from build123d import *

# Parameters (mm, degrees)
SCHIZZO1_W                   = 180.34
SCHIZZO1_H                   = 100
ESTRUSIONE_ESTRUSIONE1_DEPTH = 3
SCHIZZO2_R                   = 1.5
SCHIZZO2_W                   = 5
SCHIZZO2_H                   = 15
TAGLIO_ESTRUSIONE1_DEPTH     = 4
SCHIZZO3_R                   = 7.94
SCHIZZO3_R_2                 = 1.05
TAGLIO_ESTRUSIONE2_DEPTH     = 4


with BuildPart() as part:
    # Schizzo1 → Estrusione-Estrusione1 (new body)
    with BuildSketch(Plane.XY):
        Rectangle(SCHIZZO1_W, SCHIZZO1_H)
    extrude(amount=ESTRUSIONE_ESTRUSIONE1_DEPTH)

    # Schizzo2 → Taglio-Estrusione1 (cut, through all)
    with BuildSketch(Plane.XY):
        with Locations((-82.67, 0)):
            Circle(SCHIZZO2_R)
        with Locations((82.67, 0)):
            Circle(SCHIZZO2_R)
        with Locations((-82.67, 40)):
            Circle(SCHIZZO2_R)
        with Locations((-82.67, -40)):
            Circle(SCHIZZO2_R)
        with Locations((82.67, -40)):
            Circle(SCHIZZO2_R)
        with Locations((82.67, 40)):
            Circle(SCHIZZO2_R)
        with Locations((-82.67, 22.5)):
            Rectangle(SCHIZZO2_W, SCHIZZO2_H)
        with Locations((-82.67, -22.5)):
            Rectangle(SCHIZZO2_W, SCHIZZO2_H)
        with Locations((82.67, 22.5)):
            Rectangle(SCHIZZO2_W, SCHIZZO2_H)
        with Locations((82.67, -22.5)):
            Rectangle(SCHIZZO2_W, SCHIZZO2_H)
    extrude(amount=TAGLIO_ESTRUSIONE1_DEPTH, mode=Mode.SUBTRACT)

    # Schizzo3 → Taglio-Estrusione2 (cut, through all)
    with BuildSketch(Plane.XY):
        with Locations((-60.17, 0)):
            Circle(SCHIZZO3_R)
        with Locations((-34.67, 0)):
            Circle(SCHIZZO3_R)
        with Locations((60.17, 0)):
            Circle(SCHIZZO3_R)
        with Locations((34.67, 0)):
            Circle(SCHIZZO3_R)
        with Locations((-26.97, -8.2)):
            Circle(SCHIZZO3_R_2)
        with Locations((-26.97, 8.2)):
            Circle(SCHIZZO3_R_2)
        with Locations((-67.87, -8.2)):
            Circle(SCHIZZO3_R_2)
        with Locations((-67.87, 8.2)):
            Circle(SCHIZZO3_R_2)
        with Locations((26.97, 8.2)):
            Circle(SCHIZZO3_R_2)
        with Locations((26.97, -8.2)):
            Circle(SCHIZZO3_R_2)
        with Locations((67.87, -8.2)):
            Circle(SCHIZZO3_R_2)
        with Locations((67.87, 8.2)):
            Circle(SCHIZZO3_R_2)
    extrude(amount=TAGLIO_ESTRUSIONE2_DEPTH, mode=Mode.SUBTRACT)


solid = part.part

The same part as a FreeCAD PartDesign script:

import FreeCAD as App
import Part
import Sketcher

doc = App.newDocument("Part")
params = doc.addObject("Spreadsheet::Sheet", "Params")
for row, (alias, value) in enumerate([
    ("sketch1_height", "100 mm"),
    ("sketch1_width", "180.34 mm"),
    ("pad1_length", "3 mm"),
    ("sketch2_diameter", "3 mm"),
    ("sketch2_width", "5 mm"),
    ("sketch2_height", "15 mm"),
    ("sketch3_diameter", "2.1 mm"),
    ("sketch3_diameter2", "15.88 mm"),
], start=1):
    params.set(f"A{row}", alias)
    params.set(f"B{row}", "=" + value)
    params.setAlias(f"B{row}", alias)

body = doc.addObject("PartDesign::Body", "Body")

# Sketch on XY plane
sketch1 = body.newObject("Sketcher::SketchObject", "Sketch")
sketch1.AttachmentSupport = (doc.getObject("XY_Plane"), [""])
sketch1.MapMode = "FlatFace"
sketch1.addGeometry(Part.LineSegment(App.Vector(-90, 50, 0), App.Vector(-90, -50, 0)), False)
sketch1.addGeometry(Part.LineSegment(App.Vector(-90, -50, 0), App.Vector(90, -50, 0)), False)
sketch1.addGeometry(Part.LineSegment(App.Vector(90, -50, 0), App.Vector(90, 50, 0)), False)
sketch1.addGeometry(Part.LineSegment(App.Vector(90, 50, 0), App.Vector(-90, 50, 0)), False)
sketch1.addConstraint(Sketcher.Constraint("Coincident", 0, 2, 1, 1))
sketch1.addConstraint(Sketcher.Constraint("Coincident", 1, 2, 2, 1))
sketch1.addConstraint(Sketcher.Constraint("Coincident", 2, 2, 3, 1))
sketch1.addConstraint(Sketcher.Constraint("Coincident", 3, 2, 0, 1))
sketch1.addConstraint(Sketcher.Constraint("Vertical", 0))
sketch1.addConstraint(Sketcher.Constraint("Horizontal", 1))
sketch1.addConstraint(Sketcher.Constraint("Vertical", 2))
sketch1.addConstraint(Sketcher.Constraint("Horizontal", 3))
sketch1.addConstraint(Sketcher.Constraint("Symmetric", 0, 2, 2, 2, -1, 1))
sketch1.addConstraint(Sketcher.Constraint("DistanceY", 0, 2, 0, 1, 100.0))
sketch1.addConstraint(Sketcher.Constraint("DistanceX", 1, 1, 1, 2, 180.34))
sketch1.setExpression("Constraints[9]", "Params.sketch1_height")
sketch1.setExpression("Constraints[10]", "Params.sketch1_width")
pad1 = body.newObject("PartDesign::Pad", "Pad")
pad1.Profile = sketch1
pad1.setExpression("Length", "Params.pad1_length")

# Sketch on XY plane
sketch2 = body.newObject("Sketcher::SketchObject", "Sketch001")
sketch2.AttachmentSupport = (doc.getObject("XY_Plane"), [""])
sketch2.MapMode = "FlatFace"
sketch2.addGeometry(Part.Circle(App.Vector(-82.7, 0, 0), App.Vector(0, 0, 1), 1.5), False)
sketch2.addGeometry(Part.Circle(App.Vector(82.7, 0, 0), App.Vector(0, 0, 1), 1.5), False)
sketch2.addGeometry(Part.Circle(App.Vector(-82.7, 40, 0), App.Vector(0, 0, 1), 1.5), False)
sketch2.addGeometry(Part.Circle(App.Vector(-82.7, -40, 0), App.Vector(0, 0, 1), 1.5), False)
sketch2.addGeometry(Part.Circle(App.Vector(82.7, -40, 0), App.Vector(0, 0, 1), 1.5), False)
sketch2.addGeometry(Part.Circle(App.Vector(82.7, 40, 0), App.Vector(0, 0, 1), 1.5), False)
sketch2.addGeometry(Part.LineSegment(App.Vector(-85.2, 30, 0), App.Vector(-85.2, 15, 0)), False)
sketch2.addGeometry(Part.LineSegment(App.Vector(-85.2, 15, 0), App.Vector(-80.2, 15, 0)), False)
sketch2.addGeometry(Part.LineSegment(App.Vector(-80.2, 15, 0), App.Vector(-80.2, 30, 0)), False)
sketch2.addGeometry(Part.LineSegment(App.Vector(-80.2, 30, 0), App.Vector(-85.2, 30, 0)), False)
sketch2.addGeometry(Part.LineSegment(App.Vector(-85.2, -15, 0), App.Vector(-85.2, -30, 0)), False)
sketch2.addGeometry(Part.LineSegment(App.Vector(-85.2, -30, 0), App.Vector(-80.2, -30, 0)), False)
sketch2.addGeometry(Part.LineSegment(App.Vector(-80.2, -30, 0), App.Vector(-80.2, -15, 0)), False)
sketch2.addGeometry(Part.LineSegment(App.Vector(-80.2, -15, 0), App.Vector(-85.2, -15, 0)), False)
sketch2.addGeometry(Part.LineSegment(App.Vector(80.2, 30, 0), App.Vector(80.2, 15, 0)), False)
sketch2.addGeometry(Part.LineSegment(App.Vector(80.2, 15, 0), App.Vector(85.2, 15, 0)), False)
sketch2.addGeometry(Part.LineSegment(App.Vector(85.2, 15, 0), App.Vector(85.2, 30, 0)), False)
sketch2.addGeometry(Part.LineSegment(App.Vector(85.2, 30, 0), App.Vector(80.2, 30, 0)), False)
sketch2.addGeometry(Part.LineSegment(App.Vector(80.2, -15, 0), App.Vector(80.2, -30, 0)), False)
sketch2.addGeometry(Part.LineSegment(App.Vector(80.2, -30, 0), App.Vector(85.2, -30, 0)), False)
sketch2.addGeometry(Part.LineSegment(App.Vector(85.2, -30, 0), App.Vector(85.2, -15, 0)), False)
sketch2.addGeometry(Part.LineSegment(App.Vector(85.2, -15, 0), App.Vector(80.2, -15, 0)), False)
sketch2.addConstraint(Sketcher.Constraint("Coincident", 6, 2, 7, 1))
sketch2.addConstraint(Sketcher.Constraint("Coincident", 7, 2, 8, 1))
sketch2.addConstraint(Sketcher.Constraint("Coincident", 8, 2, 9, 1))
sketch2.addConstraint(Sketcher.Constraint("Coincident", 9, 2, 6, 1))
sketch2.addConstraint(Sketcher.Constraint("Coincident", 10, 2, 11, 1))
sketch2.addConstraint(Sketcher.Constraint("Coincident", 11, 2, 12, 1))
sketch2.addConstraint(Sketcher.Constraint("Coincident", 12, 2, 13, 1))
sketch2.addConstraint(Sketcher.Constraint("Coincident", 13, 2, 10, 1))
sketch2.addConstraint(Sketcher.Constraint("Coincident", 14, 2, 15, 1))
sketch2.addConstraint(Sketcher.Constraint("Coincident", 15, 2, 16, 1))
sketch2.addConstraint(Sketcher.Constraint("Coincident", 16, 2, 17, 1))
sketch2.addConstraint(Sketcher.Constraint("Coincident", 17, 2, 14, 1))
sketch2.addConstraint(Sketcher.Constraint("Coincident", 18, 2, 19, 1))
sketch2.addConstraint(Sketcher.Constraint("Coincident", 19, 2, 20, 1))
sketch2.addConstraint(Sketcher.Constraint("Coincident", 20, 2, 21, 1))
sketch2.addConstraint(Sketcher.Constraint("Coincident", 21, 2, 18, 1))
sketch2.addConstraint(Sketcher.Constraint("Vertical", 6))
sketch2.addConstraint(Sketcher.Constraint("Horizontal", 7))
sketch2.addConstraint(Sketcher.Constraint("Vertical", 8))
sketch2.addConstraint(Sketcher.Constraint("Horizontal", 9))
sketch2.addConstraint(Sketcher.Constraint("Vertical", 10))
sketch2.addConstraint(Sketcher.Constraint("Horizontal", 11))
sketch2.addConstraint(Sketcher.Constraint("Vertical", 12))
sketch2.addConstraint(Sketcher.Constraint("Horizontal", 13))
sketch2.addConstraint(Sketcher.Constraint("Vertical", 14))
sketch2.addConstraint(Sketcher.Constraint("Horizontal", 15))
sketch2.addConstraint(Sketcher.Constraint("Vertical", 16))
sketch2.addConstraint(Sketcher.Constraint("Horizontal", 17))
sketch2.addConstraint(Sketcher.Constraint("Vertical", 18))
sketch2.addConstraint(Sketcher.Constraint("Horizontal", 19))
sketch2.addConstraint(Sketcher.Constraint("Vertical", 20))
sketch2.addConstraint(Sketcher.Constraint("Horizontal", 21))
sketch2.addConstraint(Sketcher.Constraint("Equal", 0, 1))
sketch2.addConstraint(Sketcher.Constraint("Equal", 1, 2))
sketch2.addConstraint(Sketcher.Constraint("Equal", 2, 3))
sketch2.addConstraint(Sketcher.Constraint("Equal", 3, 4))
sketch2.addConstraint(Sketcher.Constraint("Equal", 4, 5))
sketch2.addConstraint(Sketcher.Constraint("Symmetric", 0, 3, 1, 3, -1, 1))
sketch2.addConstraint(Sketcher.Constraint("Symmetric", 2, 3, 4, 3, -1, 1))
sketch2.addConstraint(Sketcher.Constraint("Symmetric", 3, 3, 5, 3, -1, 1))
sketch2.addConstraint(Sketcher.Constraint("Symmetric", 12, 2, 14, 2, -1, 1))
sketch2.addConstraint(Sketcher.Constraint("Symmetric", 10, 2, 16, 2, -1, 1))
sketch2.addConstraint(Sketcher.Constraint("Symmetric", 8, 2, 18, 2, -1, 1))
sketch2.addConstraint(Sketcher.Constraint("Symmetric", 6, 2, 20, 2, -1, 1))
sketch2.addConstraint(Sketcher.Constraint("Symmetric", 3, 3, 4, 3, -2))
sketch2.addConstraint(Sketcher.Constraint("Symmetric", 7, 2, 14, 2, -2))
sketch2.addConstraint(Sketcher.Constraint("Symmetric", 9, 2, 16, 2, -2))
sketch2.addConstraint(Sketcher.Constraint("PointOnObject", 0, 3, -1))
sketch2.addConstraint(Sketcher.Constraint("Vertical", 0, 3, 2, 3))
sketch2.addConstraint(Sketcher.Constraint("Diameter", 0, 3.0))
sketch2.addConstraint(Sketcher.Constraint("DistanceX", 7, 1, 7, 2, 5.0))
sketch2.addConstraint(Sketcher.Constraint("DistanceY", 6, 2, 6, 1, 15.0))
sketch2.addConstraint(Sketcher.Constraint("DistanceY", -1, 1, 2, 3, 40.0))
sketch2.addConstraint(Sketcher.Constraint("DistanceY", -1, 1, 6, 2, 15.0))
sketch2.addConstraint(Sketcher.Constraint("DistanceX", 6, 2, 0, 3, 2.5))
sketch2.addConstraint(Sketcher.Constraint("DistanceX", 0, 3, -1, 1, 82.67))
sketch2.setExpression("Constraints[49]", "Params.sketch2_diameter")
sketch2.setExpression("Constraints[50]", "Params.sketch2_width")
sketch2.setExpression("Constraints[51]", "Params.sketch2_height")
pocket1 = body.newObject("PartDesign::Pocket", "Pocket")
pocket1.Profile = sketch2
pocket1.Type = "ThroughAll"
pocket1.Reversed = True

# Sketch on XY plane
sketch3 = body.newObject("Sketcher::SketchObject", "Sketch002")
sketch3.AttachmentSupport = (doc.getObject("XY_Plane"), [""])
sketch3.MapMode = "FlatFace"
sketch3.addGeometry(Part.Circle(App.Vector(-60.2, 0, 0), App.Vector(0, 0, 1), 7.9), False)
sketch3.addGeometry(Part.Circle(App.Vector(-34.7, 0, 0), App.Vector(0, 0, 1), 7.9), False)
sketch3.addGeometry(Part.Circle(App.Vector(60.2, 0, 0), App.Vector(0, 0, 1), 7.9), False)
sketch3.addGeometry(Part.Circle(App.Vector(34.7, 0, 0), App.Vector(0, 0, 1), 7.9), False)
sketch3.addGeometry(Part.Circle(App.Vector(-27, -8.2, 0), App.Vector(0, 0, 1), 1.1), False)
sketch3.addGeometry(Part.Circle(App.Vector(-27, 8.2, 0), App.Vector(0, 0, 1), 1.1), False)
sketch3.addGeometry(Part.Circle(App.Vector(-67.9, -8.2, 0), App.Vector(0, 0, 1), 1.1), False)
sketch3.addGeometry(Part.Circle(App.Vector(-67.9, 8.2, 0), App.Vector(0, 0, 1), 1.1), False)
sketch3.addGeometry(Part.Circle(App.Vector(27, 8.2, 0), App.Vector(0, 0, 1), 1.1), False)
sketch3.addGeometry(Part.Circle(App.Vector(27, -8.2, 0), App.Vector(0, 0, 1), 1.1), False)
sketch3.addGeometry(Part.Circle(App.Vector(67.9, -8.2, 0), App.Vector(0, 0, 1), 1.1), False)
sketch3.addGeometry(Part.Circle(App.Vector(67.9, 8.2, 0), App.Vector(0, 0, 1), 1.1), False)
sketch3.addConstraint(Sketcher.Constraint("Equal", 0, 1))
sketch3.addConstraint(Sketcher.Constraint("Equal", 1, 2))
sketch3.addConstraint(Sketcher.Constraint("Equal", 2, 3))
sketch3.addConstraint(Sketcher.Constraint("Equal", 4, 5))
sketch3.addConstraint(Sketcher.Constraint("Equal", 5, 6))
sketch3.addConstraint(Sketcher.Constraint("Equal", 6, 7))
sketch3.addConstraint(Sketcher.Constraint("Equal", 7, 8))
sketch3.addConstraint(Sketcher.Constraint("Equal", 8, 9))
sketch3.addConstraint(Sketcher.Constraint("Equal", 9, 10))
sketch3.addConstraint(Sketcher.Constraint("Equal", 10, 11))
sketch3.addConstraint(Sketcher.Constraint("Symmetric", 0, 3, 2, 3, -1, 1))
sketch3.addConstraint(Sketcher.Constraint("Symmetric", 1, 3, 3, 3, -1, 1))
sketch3.addConstraint(Sketcher.Constraint("Symmetric", 4, 3, 8, 3, -1, 1))
sketch3.addConstraint(Sketcher.Constraint("Symmetric", 5, 3, 9, 3, -1, 1))
sketch3.addConstraint(Sketcher.Constraint("Symmetric", 7, 3, 10, 3, -1, 1))
sketch3.addConstraint(Sketcher.Constraint("Symmetric", 6, 3, 11, 3, -1, 1))
sketch3.addConstraint(Sketcher.Constraint("Symmetric", 5, 3, 8, 3, -2))
sketch3.addConstraint(Sketcher.Constraint("Symmetric", 6, 3, 10, 3, -2))
sketch3.addConstraint(Sketcher.Constraint("PointOnObject", 0, 3, -1))
sketch3.addConstraint(Sketcher.Constraint("PointOnObject", 1, 3, -1))
sketch3.addConstraint(Sketcher.Constraint("Horizontal", 4, 3, 6, 3))
sketch3.addConstraint(Sketcher.Constraint("Diameter", 4, 2.1))
sketch3.addConstraint(Sketcher.Constraint("Diameter", 0, 15.88))
sketch3.addConstraint(Sketcher.Constraint("DistanceY", 4, 3, -1, 1, 8.2))
sketch3.addConstraint(Sketcher.Constraint("DistanceX", 0, 3, 1, 3, 25.5))
sketch3.addConstraint(Sketcher.Constraint("DistanceX", 1, 3, 4, 3, 7.7))
sketch3.addConstraint(Sketcher.Constraint("DistanceX", 6, 3, 0, 3, 7.7))
sketch3.addConstraint(Sketcher.Constraint("DistanceX", 0, 3, -1, 1, 60.17))
sketch3.setExpression("Constraints[21]", "Params.sketch3_diameter")
sketch3.setExpression("Constraints[22]", "Params.sketch3_diameter2")
pocket2 = body.newObject("PartDesign::Pocket", "Pocket001")
pocket2.Profile = sketch3
pocket2.Type = "ThroughAll"
pocket2.Reversed = True

doc.recompute()
